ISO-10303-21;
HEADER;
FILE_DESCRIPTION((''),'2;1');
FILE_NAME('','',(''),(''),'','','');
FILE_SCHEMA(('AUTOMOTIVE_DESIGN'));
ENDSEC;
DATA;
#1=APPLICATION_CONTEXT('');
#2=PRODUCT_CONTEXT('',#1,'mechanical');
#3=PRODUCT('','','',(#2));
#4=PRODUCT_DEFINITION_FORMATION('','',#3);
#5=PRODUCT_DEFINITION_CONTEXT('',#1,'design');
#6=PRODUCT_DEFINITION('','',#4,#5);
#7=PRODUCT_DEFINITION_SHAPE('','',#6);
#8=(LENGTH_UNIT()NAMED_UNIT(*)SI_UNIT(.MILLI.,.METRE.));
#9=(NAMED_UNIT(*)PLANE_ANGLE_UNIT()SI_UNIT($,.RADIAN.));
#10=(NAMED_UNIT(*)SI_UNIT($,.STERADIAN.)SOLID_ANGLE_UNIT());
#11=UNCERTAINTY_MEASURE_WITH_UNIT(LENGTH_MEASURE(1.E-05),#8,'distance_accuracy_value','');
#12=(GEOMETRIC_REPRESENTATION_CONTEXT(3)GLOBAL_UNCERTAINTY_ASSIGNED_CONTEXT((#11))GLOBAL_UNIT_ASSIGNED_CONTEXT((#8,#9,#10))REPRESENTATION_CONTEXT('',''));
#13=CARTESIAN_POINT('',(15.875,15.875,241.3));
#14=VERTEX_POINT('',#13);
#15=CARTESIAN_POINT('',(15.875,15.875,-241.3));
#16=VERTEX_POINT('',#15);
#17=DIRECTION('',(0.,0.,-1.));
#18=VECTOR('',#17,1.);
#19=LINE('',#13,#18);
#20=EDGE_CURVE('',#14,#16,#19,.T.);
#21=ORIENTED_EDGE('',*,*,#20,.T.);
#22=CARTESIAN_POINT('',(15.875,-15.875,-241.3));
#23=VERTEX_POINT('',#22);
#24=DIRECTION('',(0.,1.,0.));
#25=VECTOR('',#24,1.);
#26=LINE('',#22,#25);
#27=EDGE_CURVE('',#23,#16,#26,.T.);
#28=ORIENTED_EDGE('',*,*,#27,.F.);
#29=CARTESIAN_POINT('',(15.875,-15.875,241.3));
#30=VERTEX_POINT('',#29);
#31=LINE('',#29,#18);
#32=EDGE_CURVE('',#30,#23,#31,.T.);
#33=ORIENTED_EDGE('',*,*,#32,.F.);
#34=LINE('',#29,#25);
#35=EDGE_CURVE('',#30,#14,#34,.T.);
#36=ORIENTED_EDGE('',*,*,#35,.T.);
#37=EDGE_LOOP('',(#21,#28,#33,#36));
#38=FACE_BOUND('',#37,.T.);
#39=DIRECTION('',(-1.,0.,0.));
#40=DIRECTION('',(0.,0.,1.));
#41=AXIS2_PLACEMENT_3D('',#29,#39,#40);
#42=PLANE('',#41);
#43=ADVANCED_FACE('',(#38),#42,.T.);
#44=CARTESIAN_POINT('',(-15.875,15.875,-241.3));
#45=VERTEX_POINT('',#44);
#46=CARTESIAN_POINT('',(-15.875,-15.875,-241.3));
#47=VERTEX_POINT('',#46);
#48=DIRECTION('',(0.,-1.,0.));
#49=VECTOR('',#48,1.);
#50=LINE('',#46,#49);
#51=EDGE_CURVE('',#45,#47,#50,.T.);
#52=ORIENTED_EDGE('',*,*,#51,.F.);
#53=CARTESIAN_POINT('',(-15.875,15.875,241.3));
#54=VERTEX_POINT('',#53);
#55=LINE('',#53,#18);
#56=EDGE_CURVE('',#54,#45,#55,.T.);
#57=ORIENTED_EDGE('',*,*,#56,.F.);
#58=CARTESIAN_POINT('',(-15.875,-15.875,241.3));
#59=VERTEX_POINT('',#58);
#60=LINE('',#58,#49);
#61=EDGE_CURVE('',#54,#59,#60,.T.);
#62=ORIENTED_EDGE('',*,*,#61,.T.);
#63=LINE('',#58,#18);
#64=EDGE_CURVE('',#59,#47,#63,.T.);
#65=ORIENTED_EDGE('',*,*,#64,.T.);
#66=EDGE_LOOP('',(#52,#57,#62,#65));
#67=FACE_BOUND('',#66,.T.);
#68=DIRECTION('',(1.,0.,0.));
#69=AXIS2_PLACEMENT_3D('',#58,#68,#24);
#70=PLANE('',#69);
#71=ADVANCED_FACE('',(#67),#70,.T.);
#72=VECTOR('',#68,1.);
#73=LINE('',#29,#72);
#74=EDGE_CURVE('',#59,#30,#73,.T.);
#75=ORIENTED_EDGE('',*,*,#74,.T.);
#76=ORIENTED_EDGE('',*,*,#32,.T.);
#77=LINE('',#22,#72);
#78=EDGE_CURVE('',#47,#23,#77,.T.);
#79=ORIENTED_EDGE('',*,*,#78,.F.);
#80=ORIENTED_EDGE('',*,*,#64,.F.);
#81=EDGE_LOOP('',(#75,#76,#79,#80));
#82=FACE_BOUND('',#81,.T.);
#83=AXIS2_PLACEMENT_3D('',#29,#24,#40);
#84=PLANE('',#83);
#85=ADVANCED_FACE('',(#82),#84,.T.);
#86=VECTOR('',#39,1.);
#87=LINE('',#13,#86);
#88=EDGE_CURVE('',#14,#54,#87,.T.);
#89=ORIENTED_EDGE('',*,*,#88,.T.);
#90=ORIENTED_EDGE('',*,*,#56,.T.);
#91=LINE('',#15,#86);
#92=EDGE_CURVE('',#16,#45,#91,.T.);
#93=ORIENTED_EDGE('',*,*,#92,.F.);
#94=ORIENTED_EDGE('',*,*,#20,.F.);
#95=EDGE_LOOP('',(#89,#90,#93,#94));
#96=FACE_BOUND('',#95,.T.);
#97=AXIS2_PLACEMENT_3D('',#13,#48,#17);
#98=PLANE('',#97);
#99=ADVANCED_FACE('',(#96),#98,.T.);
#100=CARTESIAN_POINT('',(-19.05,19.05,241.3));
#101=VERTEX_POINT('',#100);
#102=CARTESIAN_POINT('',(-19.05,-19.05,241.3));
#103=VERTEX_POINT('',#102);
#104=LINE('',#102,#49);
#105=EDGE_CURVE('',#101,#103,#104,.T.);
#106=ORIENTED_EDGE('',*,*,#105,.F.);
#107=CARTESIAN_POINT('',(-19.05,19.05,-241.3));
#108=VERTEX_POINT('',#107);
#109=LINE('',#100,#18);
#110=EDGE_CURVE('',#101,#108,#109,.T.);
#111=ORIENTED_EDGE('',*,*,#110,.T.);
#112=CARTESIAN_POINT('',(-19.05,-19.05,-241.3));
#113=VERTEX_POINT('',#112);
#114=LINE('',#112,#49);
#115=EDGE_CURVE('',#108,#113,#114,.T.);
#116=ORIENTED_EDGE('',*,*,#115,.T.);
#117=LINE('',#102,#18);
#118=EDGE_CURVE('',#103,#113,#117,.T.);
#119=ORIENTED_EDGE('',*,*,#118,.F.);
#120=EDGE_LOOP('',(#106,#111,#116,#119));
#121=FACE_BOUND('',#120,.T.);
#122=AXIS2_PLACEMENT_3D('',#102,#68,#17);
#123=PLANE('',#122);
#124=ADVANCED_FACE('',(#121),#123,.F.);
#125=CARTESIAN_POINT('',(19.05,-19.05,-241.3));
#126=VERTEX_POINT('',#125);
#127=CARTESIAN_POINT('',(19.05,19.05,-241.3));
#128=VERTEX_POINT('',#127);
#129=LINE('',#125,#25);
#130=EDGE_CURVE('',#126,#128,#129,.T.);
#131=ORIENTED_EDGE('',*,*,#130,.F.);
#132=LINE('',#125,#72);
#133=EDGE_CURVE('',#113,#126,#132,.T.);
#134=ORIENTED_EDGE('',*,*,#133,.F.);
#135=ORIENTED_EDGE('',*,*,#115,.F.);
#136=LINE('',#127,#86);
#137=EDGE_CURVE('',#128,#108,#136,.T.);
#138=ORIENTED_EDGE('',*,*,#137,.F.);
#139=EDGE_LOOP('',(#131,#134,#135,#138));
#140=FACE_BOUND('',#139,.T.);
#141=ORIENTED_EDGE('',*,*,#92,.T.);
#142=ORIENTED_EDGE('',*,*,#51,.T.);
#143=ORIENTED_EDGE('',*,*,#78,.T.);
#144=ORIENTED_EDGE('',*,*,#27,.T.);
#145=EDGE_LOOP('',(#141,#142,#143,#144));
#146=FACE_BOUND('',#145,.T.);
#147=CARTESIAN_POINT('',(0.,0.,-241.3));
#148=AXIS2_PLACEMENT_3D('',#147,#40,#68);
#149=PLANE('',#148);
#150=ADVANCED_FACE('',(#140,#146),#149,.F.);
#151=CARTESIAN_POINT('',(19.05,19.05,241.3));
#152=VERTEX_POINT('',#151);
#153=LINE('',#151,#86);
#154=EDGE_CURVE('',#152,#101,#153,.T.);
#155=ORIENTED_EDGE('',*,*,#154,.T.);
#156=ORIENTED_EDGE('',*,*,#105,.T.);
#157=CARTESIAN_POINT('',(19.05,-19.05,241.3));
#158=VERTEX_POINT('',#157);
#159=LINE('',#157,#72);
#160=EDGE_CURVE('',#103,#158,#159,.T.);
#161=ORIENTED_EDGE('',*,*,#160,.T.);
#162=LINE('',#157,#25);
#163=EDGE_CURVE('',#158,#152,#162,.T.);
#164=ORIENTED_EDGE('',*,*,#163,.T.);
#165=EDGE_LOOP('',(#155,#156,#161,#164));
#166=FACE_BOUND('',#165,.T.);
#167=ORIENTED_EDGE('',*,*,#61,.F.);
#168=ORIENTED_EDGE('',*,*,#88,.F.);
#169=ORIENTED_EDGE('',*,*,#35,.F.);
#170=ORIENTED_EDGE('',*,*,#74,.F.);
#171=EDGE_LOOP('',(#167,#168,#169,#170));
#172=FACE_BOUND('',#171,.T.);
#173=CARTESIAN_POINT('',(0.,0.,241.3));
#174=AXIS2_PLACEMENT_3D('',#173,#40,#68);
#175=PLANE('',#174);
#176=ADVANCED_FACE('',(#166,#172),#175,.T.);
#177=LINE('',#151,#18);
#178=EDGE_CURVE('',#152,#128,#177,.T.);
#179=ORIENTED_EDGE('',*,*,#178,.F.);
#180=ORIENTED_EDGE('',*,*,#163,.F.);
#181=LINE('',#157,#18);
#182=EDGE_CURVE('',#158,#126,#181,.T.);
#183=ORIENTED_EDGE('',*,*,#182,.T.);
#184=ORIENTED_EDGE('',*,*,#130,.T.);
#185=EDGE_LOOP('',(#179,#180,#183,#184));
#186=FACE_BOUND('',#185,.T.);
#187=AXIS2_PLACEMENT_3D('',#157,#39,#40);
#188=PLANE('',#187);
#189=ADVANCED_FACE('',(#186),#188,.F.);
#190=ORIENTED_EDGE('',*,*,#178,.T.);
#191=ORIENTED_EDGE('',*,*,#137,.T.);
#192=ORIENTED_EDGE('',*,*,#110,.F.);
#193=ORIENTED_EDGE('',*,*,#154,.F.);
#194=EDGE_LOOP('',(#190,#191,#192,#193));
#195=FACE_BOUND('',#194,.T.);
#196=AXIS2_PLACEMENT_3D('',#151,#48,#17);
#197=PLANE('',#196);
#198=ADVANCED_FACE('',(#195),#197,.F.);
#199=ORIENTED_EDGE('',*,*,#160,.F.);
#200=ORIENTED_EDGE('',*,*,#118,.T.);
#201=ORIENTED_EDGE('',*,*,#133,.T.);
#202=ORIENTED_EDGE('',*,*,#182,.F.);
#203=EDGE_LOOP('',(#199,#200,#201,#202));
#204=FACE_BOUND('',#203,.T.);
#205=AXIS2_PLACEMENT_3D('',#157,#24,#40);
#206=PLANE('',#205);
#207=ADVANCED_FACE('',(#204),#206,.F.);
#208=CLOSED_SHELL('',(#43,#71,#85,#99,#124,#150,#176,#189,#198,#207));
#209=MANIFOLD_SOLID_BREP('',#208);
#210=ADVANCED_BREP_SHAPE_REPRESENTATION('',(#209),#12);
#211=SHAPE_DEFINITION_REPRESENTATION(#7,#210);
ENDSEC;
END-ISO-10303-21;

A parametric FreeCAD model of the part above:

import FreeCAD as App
import Part
import Sketcher
Q = App.Units.Quantity

doc = App.newDocument("Part")
body = doc.addObject("PartDesign::Body", "Body")

# Sketch on XY plane
sketch1 = body.newObject("Sketcher::SketchObject", "Sketch")
sketch1.AttachmentSupport = (doc.getObject("XY_Plane"), [""])
sketch1.MapMode = "FlatFace"
sketch1.addGeometry(Part.LineSegment(App.Vector(-19, 19, 0), App.Vector(-19, -19, 0)), False)
sketch1.addGeometry(Part.LineSegment(App.Vector(-19, -19, 0), App.Vector(19, -19, 0)), False)
sketch1.addGeometry(Part.LineSegment(App.Vector(19, -19, 0), App.Vector(19, 19, 0)), False)
sketch1.addGeometry(Part.LineSegment(App.Vector(19, 19, 0), App.Vector(-19, 19, 0)), False)
sketch1.addGeometry(Part.LineSegment(App.Vector(16, -16, 0), App.Vector(-16, -16, 0)), False)
sketch1.addGeometry(Part.LineSegment(App.Vector(-16, -16, 0), App.Vector(-16, 16, 0)), False)
sketch1.addGeometry(Part.LineSegment(App.Vector(-16, 16, 0), App.Vector(16, 16, 0)), False)
sketch1.addGeometry(Part.LineSegment(App.Vector(16, 16, 0), App.Vector(16, -16, 0)), False)
sketch1.addConstraint(Sketcher.Constraint("Coincident", 0, 2, 1, 1))
sketch1.addConstraint(Sketcher.Constraint("Coincident", 1, 2, 2, 1))
sketch1.addConstraint(Sketcher.Constraint("Coincident", 2, 2, 3, 1))
sketch1.addConstraint(Sketcher.Constraint("Coincident", 3, 2, 0, 1))
sketch1.addConstraint(Sketcher.Constraint("Coincident", 4, 2, 5, 1))
sketch1.addConstraint(Sketcher.Constraint("Coincident", 5, 2, 6, 1))
sketch1.addConstraint(Sketcher.Constraint("Coincident", 6, 2, 7, 1))
sketch1.addConstraint(Sketcher.Constraint("Coincident", 7, 2, 4, 1))
sketch1.addConstraint(Sketcher.Constraint("Vertical", 0))
sketch1.addConstraint(Sketcher.Constraint("Horizontal", 1))
sketch1.addConstraint(Sketcher.Constraint("Vertical", 2))
sketch1.addConstraint(Sketcher.Constraint("Horizontal", 3))
sketch1.addConstraint(Sketcher.Constraint("Horizontal", 4))
sketch1.addConstraint(Sketcher.Constraint("Vertical", 5))
sketch1.addConstraint(Sketcher.Constraint("Horizontal", 6))
sketch1.addConstraint(Sketcher.Constraint("Vertical", 7))
sketch1.addConstraint(Sketcher.Constraint("Symmetric", 0, 2, 2, 2, -1, 1))
sketch1.addConstraint(Sketcher.Constraint("Symmetric", 4, 2, 6, 2, -1, 1))
sketch1.addConstraint(Sketcher.Constraint("Equal", 3, 0))
sketch1.addConstraint(Sketcher.Constraint("Equal", 6, 5))
sketch1.addConstraint(Sketcher.Constraint("DistanceX", 1, 1, 1, 2, Q("1.5 in")))
sketch1.addConstraint(Sketcher.Constraint("DistanceX", 4, 2, 4, 1, Q("1.25 in")))
pad1 = body.newObject("PartDesign::Pad", "Pad")
pad1.Profile = sketch1
pad1.Type = "TwoLengths"
pad1.Length = Q("9.5 in")
pad1.Length2 = Q("9.5 in")

doc.recompute()
